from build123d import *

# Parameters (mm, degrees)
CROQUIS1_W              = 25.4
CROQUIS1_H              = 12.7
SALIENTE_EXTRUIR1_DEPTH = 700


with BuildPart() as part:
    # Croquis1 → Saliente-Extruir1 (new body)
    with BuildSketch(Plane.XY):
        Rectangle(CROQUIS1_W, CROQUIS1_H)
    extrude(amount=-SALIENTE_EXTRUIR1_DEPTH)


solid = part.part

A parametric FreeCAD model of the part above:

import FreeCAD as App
import Part
import Sketcher
from FreeCAD import Vector
Q = App.Units.Quantity


def add_polygon(sketch, points):
    """Adds a closed chain of lines whose ends are joined by coincident constraints."""
    first, n = sketch.GeometryCount, len(points)
    for a, b in zip(points, points[1:] + points[:1]):
        sketch.addGeometry(Part.LineSegment(App.Vector(*a, 0), App.Vector(*b, 0)), False)
    for i in range(n):
        sketch.addConstraint(Sketcher.Constraint("Coincident", first + i, 2, first + (i + 1) % n, 1))

doc = App.newDocument("Part")
body = doc.addObject("PartDesign::Body", "Body")

# Sketch on XY plane
sketch1 = body.newObject("Sketcher::SketchObject", "Sketch")
sketch1.AttachmentSupport = (doc.getObject("XY_Plane"), [""])
sketch1.MapMode = "FlatFace"
add_polygon(sketch1, [(-13, 6), (-13, -6), (13, -6), (13, 6)])  # lines 0-3
sketch1.addConstraint([
    Sketcher.Constraint("Vertical", 0),
    Sketcher.Constraint("Horizontal", 1),
    Sketcher.Constraint("Vertical", 2),
    Sketcher.Constraint("Horizontal", 3),
    Sketcher.Constraint("Symmetric", 0, 2, 2, 2, -1, 1),
    Sketcher.Constraint("DistanceX", 1, 1, 1, 2, Q("1 in")),
    Sketcher.Constraint("DistanceY", 0, 2, 0, 1, Q("0.5 in")),
])
pad1 = body.newObject("PartDesign::Pad", "Pad")
pad1.Profile = sketch1
pad1.Length = 700
pad1.Reversed = True

doc.recompute()
